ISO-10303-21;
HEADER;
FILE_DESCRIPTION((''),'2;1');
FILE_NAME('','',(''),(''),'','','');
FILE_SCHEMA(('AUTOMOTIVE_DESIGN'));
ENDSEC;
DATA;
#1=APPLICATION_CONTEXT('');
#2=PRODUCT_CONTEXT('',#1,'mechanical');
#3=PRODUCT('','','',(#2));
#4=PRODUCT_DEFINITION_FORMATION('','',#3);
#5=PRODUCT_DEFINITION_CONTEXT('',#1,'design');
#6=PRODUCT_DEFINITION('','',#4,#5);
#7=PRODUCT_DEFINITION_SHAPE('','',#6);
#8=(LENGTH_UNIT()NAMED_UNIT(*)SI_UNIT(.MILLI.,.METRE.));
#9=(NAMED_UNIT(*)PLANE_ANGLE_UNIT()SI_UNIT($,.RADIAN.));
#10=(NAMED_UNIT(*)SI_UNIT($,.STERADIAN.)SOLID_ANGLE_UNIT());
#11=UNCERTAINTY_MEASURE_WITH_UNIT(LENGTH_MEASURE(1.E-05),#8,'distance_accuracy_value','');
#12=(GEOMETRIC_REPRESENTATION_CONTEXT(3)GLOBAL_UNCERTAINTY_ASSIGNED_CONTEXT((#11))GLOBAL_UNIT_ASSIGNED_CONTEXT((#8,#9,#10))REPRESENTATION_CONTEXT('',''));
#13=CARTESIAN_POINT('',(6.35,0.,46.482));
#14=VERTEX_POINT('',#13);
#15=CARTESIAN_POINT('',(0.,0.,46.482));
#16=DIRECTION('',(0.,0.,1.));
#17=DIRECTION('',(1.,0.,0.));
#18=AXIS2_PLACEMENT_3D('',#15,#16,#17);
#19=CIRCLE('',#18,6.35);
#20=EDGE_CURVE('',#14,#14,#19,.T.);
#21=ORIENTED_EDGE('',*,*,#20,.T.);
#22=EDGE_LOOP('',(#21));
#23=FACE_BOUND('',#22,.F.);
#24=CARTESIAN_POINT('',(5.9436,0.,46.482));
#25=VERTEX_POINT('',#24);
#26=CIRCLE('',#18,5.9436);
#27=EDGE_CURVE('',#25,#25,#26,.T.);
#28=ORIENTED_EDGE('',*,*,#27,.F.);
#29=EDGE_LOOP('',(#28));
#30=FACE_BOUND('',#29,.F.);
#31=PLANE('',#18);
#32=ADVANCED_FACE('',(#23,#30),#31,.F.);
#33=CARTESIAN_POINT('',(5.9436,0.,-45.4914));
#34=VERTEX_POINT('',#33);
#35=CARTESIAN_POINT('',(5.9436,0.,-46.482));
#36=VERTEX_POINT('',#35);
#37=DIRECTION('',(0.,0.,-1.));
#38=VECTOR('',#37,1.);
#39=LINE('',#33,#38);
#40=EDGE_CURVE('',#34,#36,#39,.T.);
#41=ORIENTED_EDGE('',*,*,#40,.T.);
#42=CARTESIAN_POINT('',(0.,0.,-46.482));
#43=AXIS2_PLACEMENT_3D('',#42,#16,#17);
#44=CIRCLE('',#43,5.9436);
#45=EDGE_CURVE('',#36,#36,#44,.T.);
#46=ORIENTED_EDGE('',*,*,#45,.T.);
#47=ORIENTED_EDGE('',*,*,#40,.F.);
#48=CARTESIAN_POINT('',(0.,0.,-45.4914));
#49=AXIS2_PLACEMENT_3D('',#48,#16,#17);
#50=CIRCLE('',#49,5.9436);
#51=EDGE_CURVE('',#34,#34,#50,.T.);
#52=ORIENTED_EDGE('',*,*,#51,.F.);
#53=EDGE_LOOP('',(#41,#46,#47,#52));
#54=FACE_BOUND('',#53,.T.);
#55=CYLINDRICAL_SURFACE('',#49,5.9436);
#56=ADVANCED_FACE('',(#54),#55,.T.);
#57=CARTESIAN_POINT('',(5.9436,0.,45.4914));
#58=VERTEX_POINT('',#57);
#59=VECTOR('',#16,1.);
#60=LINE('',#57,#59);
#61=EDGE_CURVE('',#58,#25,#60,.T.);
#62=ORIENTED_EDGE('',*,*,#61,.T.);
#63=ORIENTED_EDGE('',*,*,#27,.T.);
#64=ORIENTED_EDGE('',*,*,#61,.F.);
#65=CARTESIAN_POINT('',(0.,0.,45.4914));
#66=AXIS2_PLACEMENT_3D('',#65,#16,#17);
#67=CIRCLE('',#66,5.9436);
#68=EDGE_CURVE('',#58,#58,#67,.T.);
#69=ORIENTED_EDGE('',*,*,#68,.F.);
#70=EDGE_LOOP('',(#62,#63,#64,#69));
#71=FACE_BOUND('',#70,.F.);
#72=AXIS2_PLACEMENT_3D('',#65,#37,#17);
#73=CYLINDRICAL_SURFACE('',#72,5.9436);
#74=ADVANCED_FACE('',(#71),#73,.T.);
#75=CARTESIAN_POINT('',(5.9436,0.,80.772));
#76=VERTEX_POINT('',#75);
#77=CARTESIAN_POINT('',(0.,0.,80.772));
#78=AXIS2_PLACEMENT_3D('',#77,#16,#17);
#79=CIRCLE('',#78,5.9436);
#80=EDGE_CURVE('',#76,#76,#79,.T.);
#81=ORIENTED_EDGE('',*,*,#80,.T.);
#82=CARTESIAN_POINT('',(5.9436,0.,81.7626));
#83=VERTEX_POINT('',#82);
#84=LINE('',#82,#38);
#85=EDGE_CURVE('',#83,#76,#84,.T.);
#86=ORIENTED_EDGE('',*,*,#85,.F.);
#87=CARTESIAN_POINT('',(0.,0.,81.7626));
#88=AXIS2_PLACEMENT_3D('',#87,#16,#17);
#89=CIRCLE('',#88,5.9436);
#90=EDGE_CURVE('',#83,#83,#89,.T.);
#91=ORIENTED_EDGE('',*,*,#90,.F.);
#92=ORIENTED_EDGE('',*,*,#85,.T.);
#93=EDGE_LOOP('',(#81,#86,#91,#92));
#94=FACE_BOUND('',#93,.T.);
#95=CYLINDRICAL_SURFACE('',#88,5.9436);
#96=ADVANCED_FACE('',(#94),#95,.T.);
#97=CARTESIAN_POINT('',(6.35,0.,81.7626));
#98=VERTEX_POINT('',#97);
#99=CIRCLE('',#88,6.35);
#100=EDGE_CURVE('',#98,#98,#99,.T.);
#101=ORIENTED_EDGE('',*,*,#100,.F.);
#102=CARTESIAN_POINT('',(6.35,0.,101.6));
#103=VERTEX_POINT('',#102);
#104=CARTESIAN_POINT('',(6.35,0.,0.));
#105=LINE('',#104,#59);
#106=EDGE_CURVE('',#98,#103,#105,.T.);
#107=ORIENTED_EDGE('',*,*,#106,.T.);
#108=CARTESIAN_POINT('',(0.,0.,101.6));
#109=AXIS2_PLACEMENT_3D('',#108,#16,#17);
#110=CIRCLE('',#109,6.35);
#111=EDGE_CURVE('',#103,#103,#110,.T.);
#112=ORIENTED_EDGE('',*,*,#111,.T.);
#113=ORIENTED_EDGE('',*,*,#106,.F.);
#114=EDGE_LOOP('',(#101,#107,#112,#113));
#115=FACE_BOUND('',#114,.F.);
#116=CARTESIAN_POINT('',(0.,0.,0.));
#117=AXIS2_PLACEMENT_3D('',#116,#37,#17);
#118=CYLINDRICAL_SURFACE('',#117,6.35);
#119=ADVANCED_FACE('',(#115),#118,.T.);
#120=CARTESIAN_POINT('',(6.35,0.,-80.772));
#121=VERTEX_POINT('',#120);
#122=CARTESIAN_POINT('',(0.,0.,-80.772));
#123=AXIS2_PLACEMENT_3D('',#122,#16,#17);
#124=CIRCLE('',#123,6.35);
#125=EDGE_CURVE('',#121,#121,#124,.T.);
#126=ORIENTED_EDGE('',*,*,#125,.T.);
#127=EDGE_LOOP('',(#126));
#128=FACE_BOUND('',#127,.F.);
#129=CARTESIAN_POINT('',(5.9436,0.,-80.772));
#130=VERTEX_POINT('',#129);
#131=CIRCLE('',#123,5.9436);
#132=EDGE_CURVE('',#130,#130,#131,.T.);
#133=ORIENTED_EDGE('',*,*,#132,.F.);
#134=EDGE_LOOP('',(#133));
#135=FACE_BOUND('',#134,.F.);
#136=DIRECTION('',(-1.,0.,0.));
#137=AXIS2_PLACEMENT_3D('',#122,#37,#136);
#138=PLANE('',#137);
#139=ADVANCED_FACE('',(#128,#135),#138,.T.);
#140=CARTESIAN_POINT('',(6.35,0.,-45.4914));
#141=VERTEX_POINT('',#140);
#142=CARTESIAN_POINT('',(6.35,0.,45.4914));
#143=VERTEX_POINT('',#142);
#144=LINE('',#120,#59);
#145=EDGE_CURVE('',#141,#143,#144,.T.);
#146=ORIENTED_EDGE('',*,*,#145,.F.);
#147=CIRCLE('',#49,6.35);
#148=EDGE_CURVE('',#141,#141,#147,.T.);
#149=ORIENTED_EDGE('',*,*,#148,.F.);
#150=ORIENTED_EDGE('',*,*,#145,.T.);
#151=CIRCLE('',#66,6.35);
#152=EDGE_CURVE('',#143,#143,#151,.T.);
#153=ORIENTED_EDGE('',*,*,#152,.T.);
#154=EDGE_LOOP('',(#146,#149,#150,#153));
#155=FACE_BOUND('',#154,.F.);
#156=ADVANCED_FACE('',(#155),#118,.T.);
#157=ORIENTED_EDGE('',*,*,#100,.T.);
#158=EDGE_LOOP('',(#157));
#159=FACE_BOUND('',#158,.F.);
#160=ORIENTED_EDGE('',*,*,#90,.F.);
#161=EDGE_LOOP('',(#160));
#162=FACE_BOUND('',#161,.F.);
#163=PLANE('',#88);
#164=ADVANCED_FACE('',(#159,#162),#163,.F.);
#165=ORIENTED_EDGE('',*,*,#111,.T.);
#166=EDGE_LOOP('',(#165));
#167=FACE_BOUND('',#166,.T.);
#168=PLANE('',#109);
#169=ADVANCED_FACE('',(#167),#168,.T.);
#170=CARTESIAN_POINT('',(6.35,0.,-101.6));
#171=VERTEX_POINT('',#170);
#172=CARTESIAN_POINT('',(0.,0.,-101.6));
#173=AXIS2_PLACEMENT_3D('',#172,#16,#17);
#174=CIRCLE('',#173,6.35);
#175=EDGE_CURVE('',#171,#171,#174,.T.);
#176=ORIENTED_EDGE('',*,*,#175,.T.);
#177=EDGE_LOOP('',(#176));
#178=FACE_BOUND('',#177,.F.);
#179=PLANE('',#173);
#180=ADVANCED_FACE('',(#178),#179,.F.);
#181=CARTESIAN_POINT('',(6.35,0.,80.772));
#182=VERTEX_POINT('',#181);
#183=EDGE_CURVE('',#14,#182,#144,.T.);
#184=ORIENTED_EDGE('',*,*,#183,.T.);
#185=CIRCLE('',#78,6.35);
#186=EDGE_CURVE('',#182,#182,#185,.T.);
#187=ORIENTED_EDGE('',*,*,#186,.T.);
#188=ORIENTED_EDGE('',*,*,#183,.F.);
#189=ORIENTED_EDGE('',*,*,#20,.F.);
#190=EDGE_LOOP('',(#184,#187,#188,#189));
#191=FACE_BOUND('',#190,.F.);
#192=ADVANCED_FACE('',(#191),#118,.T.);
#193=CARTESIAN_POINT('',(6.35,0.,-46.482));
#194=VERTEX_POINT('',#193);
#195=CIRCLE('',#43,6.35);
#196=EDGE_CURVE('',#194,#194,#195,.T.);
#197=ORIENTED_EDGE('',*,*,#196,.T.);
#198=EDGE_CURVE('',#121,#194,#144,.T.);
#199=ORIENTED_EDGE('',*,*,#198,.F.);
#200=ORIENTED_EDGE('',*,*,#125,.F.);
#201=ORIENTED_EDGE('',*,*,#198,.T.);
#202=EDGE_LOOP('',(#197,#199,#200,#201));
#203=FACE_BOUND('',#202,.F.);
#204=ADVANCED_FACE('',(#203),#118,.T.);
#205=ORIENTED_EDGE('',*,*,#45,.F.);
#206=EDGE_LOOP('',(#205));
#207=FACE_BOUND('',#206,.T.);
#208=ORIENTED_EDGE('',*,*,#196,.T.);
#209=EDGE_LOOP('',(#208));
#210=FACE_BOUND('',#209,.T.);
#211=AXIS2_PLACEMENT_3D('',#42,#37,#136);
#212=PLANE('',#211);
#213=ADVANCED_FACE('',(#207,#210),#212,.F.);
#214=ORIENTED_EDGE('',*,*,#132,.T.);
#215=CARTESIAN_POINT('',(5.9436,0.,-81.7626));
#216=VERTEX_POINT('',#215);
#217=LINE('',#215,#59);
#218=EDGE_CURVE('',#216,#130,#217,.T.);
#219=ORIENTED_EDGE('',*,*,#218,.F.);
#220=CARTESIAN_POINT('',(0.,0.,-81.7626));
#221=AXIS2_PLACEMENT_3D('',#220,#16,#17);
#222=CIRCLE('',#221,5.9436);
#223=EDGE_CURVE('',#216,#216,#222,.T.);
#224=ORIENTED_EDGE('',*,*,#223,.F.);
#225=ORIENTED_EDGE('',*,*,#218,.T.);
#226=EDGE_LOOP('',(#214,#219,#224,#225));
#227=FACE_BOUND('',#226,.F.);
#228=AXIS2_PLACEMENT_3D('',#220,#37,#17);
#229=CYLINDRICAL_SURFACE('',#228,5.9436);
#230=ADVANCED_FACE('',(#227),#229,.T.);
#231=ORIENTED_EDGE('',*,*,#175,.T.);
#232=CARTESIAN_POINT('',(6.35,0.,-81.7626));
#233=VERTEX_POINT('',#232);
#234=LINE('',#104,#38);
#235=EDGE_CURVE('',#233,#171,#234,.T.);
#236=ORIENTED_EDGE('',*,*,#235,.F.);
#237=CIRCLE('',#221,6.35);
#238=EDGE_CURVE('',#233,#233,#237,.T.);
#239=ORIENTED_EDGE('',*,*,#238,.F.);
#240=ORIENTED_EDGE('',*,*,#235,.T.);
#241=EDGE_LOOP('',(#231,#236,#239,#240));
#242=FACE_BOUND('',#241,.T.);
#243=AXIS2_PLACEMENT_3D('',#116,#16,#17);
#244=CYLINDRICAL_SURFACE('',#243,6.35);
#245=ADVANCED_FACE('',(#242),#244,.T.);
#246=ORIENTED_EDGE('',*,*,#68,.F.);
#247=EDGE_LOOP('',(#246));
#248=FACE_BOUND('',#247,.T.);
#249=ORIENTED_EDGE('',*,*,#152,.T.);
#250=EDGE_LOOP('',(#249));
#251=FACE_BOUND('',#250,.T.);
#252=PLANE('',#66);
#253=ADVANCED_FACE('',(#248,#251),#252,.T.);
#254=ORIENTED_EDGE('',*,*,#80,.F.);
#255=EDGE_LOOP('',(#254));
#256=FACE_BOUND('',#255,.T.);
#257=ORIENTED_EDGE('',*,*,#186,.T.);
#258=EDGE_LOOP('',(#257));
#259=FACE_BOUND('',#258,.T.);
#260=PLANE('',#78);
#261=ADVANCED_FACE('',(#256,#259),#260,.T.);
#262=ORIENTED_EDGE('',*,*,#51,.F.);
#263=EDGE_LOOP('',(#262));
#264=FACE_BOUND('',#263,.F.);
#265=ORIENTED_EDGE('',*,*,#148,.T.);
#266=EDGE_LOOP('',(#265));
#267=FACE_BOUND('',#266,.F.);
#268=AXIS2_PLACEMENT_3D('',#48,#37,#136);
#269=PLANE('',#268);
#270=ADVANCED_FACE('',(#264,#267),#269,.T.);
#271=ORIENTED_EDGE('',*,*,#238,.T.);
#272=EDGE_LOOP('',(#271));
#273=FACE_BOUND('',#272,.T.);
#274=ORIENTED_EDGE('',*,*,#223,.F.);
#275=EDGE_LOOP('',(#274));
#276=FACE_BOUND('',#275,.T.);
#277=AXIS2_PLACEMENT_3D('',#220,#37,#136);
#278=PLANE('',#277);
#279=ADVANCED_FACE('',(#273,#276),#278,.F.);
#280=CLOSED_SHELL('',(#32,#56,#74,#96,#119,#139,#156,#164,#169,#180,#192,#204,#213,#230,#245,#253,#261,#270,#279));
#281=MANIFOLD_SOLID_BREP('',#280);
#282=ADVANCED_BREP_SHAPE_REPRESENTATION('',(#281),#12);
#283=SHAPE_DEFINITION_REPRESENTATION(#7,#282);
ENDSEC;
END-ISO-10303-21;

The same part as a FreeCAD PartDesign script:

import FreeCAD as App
import Part
import Sketcher

V = App.Vector
Q = App.Units.Quantity

doc = App.newDocument("Part")
body = doc.addObject("PartDesign::Body", "Body")

# Sketch on XY plane
sketch1 = doc.addObject("Sketcher::SketchObject", "Sketch")
body.addObject(sketch1)
sketch1.AttachmentSupport = (doc.XY_Plane, [""])
sketch1.MapMode = "FlatFace"
sketch1.addGeometry(Part.Circle(V(0, 0, 0), V(0, 0, 1), 6), False)
sketch1.addConstraint(Sketcher.Constraint("Coincident", 0, 3, -1, 1))
sketch1.addConstraint(Sketcher.Constraint("Diameter", 0, Q("0.5 in")))
pad1 = doc.addObject("PartDesign::Pad", "Pad")
body.addObject(pad1)
pad1.Profile = sketch1
pad1.Length = Q("8 in")
pad1.Midplane = True

# Sketch on XY plane
sketch2 = doc.addObject("Sketcher::SketchObject", "Sketch001")
body.addObject(sketch2)
sketch2.AttachmentSupport = (doc.XY_Plane, [""])
sketch2.MapMode = "FlatFace"
sketch2.AttachmentOffset = App.Placement(V(0, 0, 3.219 * 25.4), App.Rotation())
sketch2.addGeometry(Part.Circle(V(0, 0, 0), V(0, 0, 1), 6), False)
sketch2.addGeometry(Part.Circle(V(0, 0, 0), V(0, 0, 1), 6), False)
sketch2.addConstraint(Sketcher.Constraint("Coincident", 0, 3, -1, 1))
sketch2.addConstraint(Sketcher.Constraint("Coincident", 1, 3, -1, 1))
sketch2.addConstraint(Sketcher.Constraint("Diameter", 0, Q("0.5 in")))
sketch2.addConstraint(Sketcher.Constraint("Diameter", 1, Q("0.468 in")))
pocket1 = doc.addObject("PartDesign::Pocket", "Pocket")
body.addObject(pocket1)
pocket1.Profile = sketch2
pocket1.Length = Q("0.039 in")
doc.recompute()

mirrored = doc.addObject("PartDesign::Mirrored", "Mirrored")
body.addObject(mirrored)
mirrored.Originals = [pocket1]
mirrored.MirrorPlane = (doc.XY_Plane, [""])
body.Tip = mirrored

# Sketch on XY plane
sketch3 = doc.addObject("Sketcher::SketchObject", "Sketch002")
body.addObject(sketch3)
sketch3.AttachmentSupport = (doc.XY_Plane, [""])
sketch3.MapMode = "FlatFace"
sketch3.AttachmentOffset = App.Placement(V(0, 0, 1.791 * 25.4), App.Rotation())
sketch3.addGeometry(Part.Circle(V(0, 0, 0), V(0, 0, 1), 6), False)
sketch3.addGeometry(Part.Circle(V(0, 0, 0), V(0, 0, 1), 6), False)
sketch3.addConstraint(Sketcher.Constraint("Coincident", 0, 3, -1, 1))
sketch3.addConstraint(Sketcher.Constraint("Coincident", 1, 3, -1, 1))
sketch3.addConstraint(Sketcher.Constraint("Diameter", 0, Q("0.5 in")))
sketch3.addConstraint(Sketcher.Constraint("Diameter", 1, Q("0.468 in")))
pocket2 = doc.addObject("PartDesign::Pocket", "Pocket001")
body.addObject(pocket2)
pocket2.Profile = sketch3
pocket2.Length = Q("0.039 in")
pocket2.Reversed = True
doc.recompute()

mirrored2 = doc.addObject("PartDesign::Mirrored", "Mirrored001")
body.addObject(mirrored2)
mirrored2.Originals = [pocket2]
mirrored2.MirrorPlane = (doc.XY_Plane, [""])
body.Tip = mirrored2

doc.recompute()
